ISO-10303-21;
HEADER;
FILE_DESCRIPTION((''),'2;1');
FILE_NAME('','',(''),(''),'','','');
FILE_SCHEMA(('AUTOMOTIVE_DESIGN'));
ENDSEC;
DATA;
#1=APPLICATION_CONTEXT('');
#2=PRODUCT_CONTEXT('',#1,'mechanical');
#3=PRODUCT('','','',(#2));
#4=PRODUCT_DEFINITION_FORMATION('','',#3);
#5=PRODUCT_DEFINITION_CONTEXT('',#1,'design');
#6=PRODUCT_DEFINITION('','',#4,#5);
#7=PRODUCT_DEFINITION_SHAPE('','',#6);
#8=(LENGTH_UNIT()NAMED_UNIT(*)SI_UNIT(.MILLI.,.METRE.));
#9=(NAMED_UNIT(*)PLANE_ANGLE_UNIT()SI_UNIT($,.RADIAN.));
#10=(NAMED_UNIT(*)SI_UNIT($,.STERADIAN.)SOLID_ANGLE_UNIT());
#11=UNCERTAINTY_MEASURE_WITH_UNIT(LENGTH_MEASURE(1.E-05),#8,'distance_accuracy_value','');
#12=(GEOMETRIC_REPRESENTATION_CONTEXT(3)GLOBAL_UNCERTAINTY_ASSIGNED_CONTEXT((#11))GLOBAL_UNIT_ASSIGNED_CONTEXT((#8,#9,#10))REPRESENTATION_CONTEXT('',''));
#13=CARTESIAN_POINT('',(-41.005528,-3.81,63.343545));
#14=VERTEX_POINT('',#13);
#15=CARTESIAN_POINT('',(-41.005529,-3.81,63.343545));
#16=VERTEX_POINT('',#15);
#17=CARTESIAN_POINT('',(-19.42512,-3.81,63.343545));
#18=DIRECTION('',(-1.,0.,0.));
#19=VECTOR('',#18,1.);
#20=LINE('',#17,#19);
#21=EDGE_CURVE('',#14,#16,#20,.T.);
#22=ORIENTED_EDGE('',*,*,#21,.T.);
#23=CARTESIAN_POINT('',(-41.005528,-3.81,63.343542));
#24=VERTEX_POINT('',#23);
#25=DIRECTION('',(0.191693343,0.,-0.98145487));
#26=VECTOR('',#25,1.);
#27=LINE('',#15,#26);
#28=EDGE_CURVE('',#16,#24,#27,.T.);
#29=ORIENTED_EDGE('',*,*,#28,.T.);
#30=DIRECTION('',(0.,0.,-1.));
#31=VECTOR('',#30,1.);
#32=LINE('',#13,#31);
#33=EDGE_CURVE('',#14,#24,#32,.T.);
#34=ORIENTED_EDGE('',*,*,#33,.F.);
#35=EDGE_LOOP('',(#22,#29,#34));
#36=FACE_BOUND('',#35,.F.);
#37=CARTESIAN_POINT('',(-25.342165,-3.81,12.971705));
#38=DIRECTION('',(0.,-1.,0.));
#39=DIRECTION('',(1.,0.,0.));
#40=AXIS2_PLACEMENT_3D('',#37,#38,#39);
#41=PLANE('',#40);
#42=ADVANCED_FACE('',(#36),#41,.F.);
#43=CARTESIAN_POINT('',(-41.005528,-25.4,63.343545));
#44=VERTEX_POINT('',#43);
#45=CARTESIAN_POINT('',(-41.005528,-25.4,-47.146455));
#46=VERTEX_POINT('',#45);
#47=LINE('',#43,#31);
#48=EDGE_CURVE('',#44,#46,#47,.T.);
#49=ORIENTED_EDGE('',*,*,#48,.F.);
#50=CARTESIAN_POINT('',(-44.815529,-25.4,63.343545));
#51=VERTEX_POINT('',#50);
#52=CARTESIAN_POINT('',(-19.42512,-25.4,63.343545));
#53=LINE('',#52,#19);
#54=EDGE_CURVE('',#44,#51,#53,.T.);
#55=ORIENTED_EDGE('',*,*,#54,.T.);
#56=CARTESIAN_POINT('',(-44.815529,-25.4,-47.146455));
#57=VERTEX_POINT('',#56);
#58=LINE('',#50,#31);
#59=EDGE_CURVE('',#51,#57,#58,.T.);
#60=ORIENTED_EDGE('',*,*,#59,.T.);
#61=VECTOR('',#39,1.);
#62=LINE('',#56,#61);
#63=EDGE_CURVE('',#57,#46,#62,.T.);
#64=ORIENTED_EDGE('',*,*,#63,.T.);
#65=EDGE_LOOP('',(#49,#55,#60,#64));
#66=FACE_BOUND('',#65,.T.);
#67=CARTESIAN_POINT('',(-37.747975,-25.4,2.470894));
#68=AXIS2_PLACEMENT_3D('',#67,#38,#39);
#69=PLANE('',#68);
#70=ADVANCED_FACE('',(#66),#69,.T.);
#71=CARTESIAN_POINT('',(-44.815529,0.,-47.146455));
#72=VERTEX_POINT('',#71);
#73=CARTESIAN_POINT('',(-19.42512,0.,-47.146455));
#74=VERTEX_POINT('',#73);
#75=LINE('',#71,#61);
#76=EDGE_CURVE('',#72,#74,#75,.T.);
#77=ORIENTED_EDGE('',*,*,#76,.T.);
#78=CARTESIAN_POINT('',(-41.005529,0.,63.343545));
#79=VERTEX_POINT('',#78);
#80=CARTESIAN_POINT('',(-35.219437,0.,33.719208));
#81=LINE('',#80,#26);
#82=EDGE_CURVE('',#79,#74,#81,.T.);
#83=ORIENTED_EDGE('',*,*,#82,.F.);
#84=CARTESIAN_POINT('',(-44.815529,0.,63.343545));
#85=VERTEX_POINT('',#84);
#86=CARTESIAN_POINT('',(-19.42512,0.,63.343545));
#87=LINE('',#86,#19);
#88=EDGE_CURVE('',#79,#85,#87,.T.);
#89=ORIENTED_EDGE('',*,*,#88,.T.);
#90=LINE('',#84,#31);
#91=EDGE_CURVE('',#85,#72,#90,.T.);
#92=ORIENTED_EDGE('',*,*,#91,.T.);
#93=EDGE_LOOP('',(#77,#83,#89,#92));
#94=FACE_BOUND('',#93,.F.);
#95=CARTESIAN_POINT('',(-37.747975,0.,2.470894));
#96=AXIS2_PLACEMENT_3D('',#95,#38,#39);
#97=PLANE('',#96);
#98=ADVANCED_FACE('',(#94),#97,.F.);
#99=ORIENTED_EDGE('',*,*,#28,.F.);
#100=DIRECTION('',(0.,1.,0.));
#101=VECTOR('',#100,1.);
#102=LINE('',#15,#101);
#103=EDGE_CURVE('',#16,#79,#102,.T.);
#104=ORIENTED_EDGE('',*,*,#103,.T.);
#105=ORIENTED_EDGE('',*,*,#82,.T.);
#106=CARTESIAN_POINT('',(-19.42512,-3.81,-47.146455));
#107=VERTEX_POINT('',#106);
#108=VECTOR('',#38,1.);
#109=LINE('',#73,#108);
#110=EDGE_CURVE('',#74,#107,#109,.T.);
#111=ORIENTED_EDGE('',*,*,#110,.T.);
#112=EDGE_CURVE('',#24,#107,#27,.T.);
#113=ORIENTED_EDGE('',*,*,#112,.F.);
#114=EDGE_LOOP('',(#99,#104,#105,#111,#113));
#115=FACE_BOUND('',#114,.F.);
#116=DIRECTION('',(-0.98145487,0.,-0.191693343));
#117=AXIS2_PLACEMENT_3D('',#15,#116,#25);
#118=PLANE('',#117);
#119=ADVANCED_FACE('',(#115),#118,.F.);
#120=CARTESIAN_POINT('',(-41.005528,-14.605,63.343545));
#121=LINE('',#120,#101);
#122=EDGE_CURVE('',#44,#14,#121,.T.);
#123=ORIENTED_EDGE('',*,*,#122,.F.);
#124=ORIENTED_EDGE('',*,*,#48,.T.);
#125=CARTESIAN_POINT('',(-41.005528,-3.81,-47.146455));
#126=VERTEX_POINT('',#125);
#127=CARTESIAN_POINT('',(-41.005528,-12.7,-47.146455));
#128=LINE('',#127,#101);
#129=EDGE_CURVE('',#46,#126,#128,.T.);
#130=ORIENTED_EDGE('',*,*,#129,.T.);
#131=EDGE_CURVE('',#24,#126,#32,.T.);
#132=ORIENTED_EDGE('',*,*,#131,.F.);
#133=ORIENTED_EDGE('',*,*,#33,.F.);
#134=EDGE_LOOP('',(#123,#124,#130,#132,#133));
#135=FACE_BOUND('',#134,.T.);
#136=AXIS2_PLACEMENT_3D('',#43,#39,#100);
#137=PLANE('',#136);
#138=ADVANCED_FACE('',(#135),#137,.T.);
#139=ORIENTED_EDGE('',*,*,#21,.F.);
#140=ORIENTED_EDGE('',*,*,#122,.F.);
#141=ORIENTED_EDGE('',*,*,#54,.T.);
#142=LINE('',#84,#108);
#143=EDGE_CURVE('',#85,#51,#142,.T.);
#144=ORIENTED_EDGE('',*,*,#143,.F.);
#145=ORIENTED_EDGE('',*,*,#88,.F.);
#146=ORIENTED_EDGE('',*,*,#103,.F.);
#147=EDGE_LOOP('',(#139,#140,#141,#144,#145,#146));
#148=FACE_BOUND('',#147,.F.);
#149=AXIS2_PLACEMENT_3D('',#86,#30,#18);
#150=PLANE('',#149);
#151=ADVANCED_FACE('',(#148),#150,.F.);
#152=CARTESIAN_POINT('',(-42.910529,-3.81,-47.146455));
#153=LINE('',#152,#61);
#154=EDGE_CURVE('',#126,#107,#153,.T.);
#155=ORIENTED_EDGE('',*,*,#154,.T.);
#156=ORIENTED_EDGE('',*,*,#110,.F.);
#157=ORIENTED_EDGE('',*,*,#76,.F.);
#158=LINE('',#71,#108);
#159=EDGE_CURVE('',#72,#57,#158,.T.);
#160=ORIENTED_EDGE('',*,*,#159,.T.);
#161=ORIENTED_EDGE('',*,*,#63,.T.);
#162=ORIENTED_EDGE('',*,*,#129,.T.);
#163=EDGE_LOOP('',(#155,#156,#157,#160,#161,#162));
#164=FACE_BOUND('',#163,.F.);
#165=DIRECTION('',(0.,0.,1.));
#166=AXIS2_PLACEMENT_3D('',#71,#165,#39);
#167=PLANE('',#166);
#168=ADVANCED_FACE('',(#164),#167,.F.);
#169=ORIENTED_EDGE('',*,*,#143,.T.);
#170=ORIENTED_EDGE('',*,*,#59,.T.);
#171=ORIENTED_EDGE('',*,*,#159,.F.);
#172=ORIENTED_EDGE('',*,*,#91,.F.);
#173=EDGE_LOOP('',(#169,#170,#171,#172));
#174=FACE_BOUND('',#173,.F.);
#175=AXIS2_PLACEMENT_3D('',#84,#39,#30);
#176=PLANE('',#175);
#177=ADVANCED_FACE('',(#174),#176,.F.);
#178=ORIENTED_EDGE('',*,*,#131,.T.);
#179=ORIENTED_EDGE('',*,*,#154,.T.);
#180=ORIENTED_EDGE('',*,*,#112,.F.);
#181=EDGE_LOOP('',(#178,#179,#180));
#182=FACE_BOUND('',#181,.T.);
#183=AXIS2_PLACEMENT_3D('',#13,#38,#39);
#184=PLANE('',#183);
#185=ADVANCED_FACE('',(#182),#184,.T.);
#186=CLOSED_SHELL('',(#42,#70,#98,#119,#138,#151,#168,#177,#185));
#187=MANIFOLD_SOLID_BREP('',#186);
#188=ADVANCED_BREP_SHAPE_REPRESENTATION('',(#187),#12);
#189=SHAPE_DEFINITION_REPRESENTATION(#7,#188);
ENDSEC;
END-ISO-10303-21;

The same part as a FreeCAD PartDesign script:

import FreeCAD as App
import Part
import Sketcher

V = App.Vector
Q = App.Units.Quantity

doc = App.newDocument("Part")
body = doc.addObject("PartDesign::Body", "Body")

# Sketch on XZ plane
sketch1 = doc.addObject("Sketcher::SketchObject", "Sketch")
body.addObject(sketch1)
sketch1.AttachmentSupport = (doc.XZ_Plane, [""])
sketch1.MapMode = "FlatFace"
sketch1.addGeometry([
    Part.LineSegment(V(-44.815529, -47.146455, 0), V(-19.42512, -47.146455, 0)),
    Part.LineSegment(V(-19.42512, -47.146455, 0), V(-19.42512, 63.343545, 0)),
    Part.LineSegment(V(-19.42512, 63.343545, 0), V(-44.815529, 63.343545, 0)),
    Part.LineSegment(V(-44.815529, 63.343545, 0), V(-44.815529, -47.146455, 0)),
], False)
sketch1.addConstraint([
    Sketcher.Constraint("Coincident", 0, 2, 1, 1),
    Sketcher.Constraint("Coincident", 1, 2, 2, 1),
    Sketcher.Constraint("Coincident", 2, 2, 3, 1),
    Sketcher.Constraint("Coincident", 3, 2, 0, 1),
    Sketcher.Constraint("Horizontal", 0),
    Sketcher.Constraint("Vertical", 1),
    Sketcher.Constraint("Horizontal", 2),
    Sketcher.Constraint("Vertical", 3),
    Sketcher.Constraint("DistanceY", 1, 1, 1, 2, Q("4.35 in")),
    Sketcher.Constraint("DistanceX", 0, 1, 0, 2, Q("25.390409 mm")),
    Sketcher.Constraint("DistanceX", 0, 2, -1, 1, Q("19.42512 mm")),
    Sketcher.Constraint("DistanceY", 0, 2, -1, 1, Q("47.146455 mm")),
])
pad1 = doc.addObject("PartDesign::Pad", "Pad")
body.addObject(pad1)
pad1.Profile = sketch1
pad1.Length = Q("1 in")

# Sketch on XY plane
sketch2 = doc.addObject("Sketcher::SketchObject", "Sketch001")
body.addObject(sketch2)
sketch2.AttachmentSupport = (doc.XY_Plane, [""])
sketch2.MapMode = "FlatFace"
sketch2.AttachmentOffset = App.Placement(V(0, 0, 63.343545), App.Rotation())
sketch2.addGeometry([
    Part.LineSegment(V(-41.005528, -3.81, 0), V(-41.005528, -25.4, 0)),
    Part.LineSegment(V(-41.005528, -25.4, 0), V(-19.42512, -25.4, 0)),
    Part.LineSegment(V(-19.42512, -25.4, 0), V(-19.42512, -3.81, 0)),
    Part.LineSegment(V(-19.42512, -3.81, 0), V(-41.005528, -3.81, 0)),
], False)
sketch2.addConstraint([
    Sketcher.Constraint("Coincident", 0, 2, 1, 1),
    Sketcher.Constraint("Coincident", 1, 2, 2, 1),
    Sketcher.Constraint("Coincident", 2, 2, 3, 1),
    Sketcher.Constraint("Coincident", 3, 2, 0, 1),
    Sketcher.Constraint("Vertical", 0),
    Sketcher.Constraint("Horizontal", 1),
    Sketcher.Constraint("Vertical", 2),
    Sketcher.Constraint("Horizontal", 3),
    Sketcher.Constraint("DistanceY", 0, 2, -1, 1, Q("1 in")),
    Sketcher.Constraint("DistanceY", 0, 2, 0, 1, Q("0.85 in")),
    Sketcher.Constraint("DistanceX", 1, 1, 1, 2, Q("21.580409 mm")),
    Sketcher.Constraint("DistanceX", 0, 2, -1, 1, Q("41.005528 mm")),
])
pocket1 = doc.addObject("PartDesign::Pocket", "Pocket")
body.addObject(pocket1)
pocket1.Profile = sketch2
pocket1.Length = Q("5 in")

# Sketch on XZ plane
sketch3 = doc.addObject("Sketcher::SketchObject", "Sketch002")
body.addObject(sketch3)
sketch3.AttachmentSupport = (doc.XZ_Plane, [""])
sketch3.MapMode = "FlatFace"
sketch3.AttachmentOffset = App.Placement(V(0, 0, 0.15 * 25.4), App.Rotation())
sketch3.addGeometry([
    Part.LineSegment(V(-19.42512, 63.343545, 0), V(-41.005529, 63.343545, 0)),
    Part.LineSegment(V(-41.005529, 63.343545, 0), V(-19.42512, -47.146455, 0)),
    Part.LineSegment(V(-19.42512, -47.146455, 0), V(-19.42512, 63.343545, 0)),
], False)
sketch3.addConstraint([
    Sketcher.Constraint("Coincident", 0, 2, 1, 1),
    Sketcher.Constraint("Coincident", 1, 2, 2, 1),
    Sketcher.Constraint("Coincident", 2, 2, 0, 1),
    Sketcher.Constraint("Horizontal", 0),
    Sketcher.Constraint("Vertical", 2),
    Sketcher.Constraint("DistanceY", 2, 1, 2, 2, Q("4.35 in")),
    Sketcher.Constraint("DistanceX", 0, 2, 0, 1, Q("21.580409 mm")),
    Sketcher.Constraint("DistanceX", 0, 2, -1, 1, Q("41.005529 mm")),
    Sketcher.Constraint("DistanceY", -1, 1, 0, 2, Q("63.343545 mm")),
])
pocket2 = doc.addObject("PartDesign::Pocket", "Pocket001")
body.addObject(pocket2)
pocket2.Profile = sketch3
pocket2.Length = Q("1 in")

doc.recompute()
